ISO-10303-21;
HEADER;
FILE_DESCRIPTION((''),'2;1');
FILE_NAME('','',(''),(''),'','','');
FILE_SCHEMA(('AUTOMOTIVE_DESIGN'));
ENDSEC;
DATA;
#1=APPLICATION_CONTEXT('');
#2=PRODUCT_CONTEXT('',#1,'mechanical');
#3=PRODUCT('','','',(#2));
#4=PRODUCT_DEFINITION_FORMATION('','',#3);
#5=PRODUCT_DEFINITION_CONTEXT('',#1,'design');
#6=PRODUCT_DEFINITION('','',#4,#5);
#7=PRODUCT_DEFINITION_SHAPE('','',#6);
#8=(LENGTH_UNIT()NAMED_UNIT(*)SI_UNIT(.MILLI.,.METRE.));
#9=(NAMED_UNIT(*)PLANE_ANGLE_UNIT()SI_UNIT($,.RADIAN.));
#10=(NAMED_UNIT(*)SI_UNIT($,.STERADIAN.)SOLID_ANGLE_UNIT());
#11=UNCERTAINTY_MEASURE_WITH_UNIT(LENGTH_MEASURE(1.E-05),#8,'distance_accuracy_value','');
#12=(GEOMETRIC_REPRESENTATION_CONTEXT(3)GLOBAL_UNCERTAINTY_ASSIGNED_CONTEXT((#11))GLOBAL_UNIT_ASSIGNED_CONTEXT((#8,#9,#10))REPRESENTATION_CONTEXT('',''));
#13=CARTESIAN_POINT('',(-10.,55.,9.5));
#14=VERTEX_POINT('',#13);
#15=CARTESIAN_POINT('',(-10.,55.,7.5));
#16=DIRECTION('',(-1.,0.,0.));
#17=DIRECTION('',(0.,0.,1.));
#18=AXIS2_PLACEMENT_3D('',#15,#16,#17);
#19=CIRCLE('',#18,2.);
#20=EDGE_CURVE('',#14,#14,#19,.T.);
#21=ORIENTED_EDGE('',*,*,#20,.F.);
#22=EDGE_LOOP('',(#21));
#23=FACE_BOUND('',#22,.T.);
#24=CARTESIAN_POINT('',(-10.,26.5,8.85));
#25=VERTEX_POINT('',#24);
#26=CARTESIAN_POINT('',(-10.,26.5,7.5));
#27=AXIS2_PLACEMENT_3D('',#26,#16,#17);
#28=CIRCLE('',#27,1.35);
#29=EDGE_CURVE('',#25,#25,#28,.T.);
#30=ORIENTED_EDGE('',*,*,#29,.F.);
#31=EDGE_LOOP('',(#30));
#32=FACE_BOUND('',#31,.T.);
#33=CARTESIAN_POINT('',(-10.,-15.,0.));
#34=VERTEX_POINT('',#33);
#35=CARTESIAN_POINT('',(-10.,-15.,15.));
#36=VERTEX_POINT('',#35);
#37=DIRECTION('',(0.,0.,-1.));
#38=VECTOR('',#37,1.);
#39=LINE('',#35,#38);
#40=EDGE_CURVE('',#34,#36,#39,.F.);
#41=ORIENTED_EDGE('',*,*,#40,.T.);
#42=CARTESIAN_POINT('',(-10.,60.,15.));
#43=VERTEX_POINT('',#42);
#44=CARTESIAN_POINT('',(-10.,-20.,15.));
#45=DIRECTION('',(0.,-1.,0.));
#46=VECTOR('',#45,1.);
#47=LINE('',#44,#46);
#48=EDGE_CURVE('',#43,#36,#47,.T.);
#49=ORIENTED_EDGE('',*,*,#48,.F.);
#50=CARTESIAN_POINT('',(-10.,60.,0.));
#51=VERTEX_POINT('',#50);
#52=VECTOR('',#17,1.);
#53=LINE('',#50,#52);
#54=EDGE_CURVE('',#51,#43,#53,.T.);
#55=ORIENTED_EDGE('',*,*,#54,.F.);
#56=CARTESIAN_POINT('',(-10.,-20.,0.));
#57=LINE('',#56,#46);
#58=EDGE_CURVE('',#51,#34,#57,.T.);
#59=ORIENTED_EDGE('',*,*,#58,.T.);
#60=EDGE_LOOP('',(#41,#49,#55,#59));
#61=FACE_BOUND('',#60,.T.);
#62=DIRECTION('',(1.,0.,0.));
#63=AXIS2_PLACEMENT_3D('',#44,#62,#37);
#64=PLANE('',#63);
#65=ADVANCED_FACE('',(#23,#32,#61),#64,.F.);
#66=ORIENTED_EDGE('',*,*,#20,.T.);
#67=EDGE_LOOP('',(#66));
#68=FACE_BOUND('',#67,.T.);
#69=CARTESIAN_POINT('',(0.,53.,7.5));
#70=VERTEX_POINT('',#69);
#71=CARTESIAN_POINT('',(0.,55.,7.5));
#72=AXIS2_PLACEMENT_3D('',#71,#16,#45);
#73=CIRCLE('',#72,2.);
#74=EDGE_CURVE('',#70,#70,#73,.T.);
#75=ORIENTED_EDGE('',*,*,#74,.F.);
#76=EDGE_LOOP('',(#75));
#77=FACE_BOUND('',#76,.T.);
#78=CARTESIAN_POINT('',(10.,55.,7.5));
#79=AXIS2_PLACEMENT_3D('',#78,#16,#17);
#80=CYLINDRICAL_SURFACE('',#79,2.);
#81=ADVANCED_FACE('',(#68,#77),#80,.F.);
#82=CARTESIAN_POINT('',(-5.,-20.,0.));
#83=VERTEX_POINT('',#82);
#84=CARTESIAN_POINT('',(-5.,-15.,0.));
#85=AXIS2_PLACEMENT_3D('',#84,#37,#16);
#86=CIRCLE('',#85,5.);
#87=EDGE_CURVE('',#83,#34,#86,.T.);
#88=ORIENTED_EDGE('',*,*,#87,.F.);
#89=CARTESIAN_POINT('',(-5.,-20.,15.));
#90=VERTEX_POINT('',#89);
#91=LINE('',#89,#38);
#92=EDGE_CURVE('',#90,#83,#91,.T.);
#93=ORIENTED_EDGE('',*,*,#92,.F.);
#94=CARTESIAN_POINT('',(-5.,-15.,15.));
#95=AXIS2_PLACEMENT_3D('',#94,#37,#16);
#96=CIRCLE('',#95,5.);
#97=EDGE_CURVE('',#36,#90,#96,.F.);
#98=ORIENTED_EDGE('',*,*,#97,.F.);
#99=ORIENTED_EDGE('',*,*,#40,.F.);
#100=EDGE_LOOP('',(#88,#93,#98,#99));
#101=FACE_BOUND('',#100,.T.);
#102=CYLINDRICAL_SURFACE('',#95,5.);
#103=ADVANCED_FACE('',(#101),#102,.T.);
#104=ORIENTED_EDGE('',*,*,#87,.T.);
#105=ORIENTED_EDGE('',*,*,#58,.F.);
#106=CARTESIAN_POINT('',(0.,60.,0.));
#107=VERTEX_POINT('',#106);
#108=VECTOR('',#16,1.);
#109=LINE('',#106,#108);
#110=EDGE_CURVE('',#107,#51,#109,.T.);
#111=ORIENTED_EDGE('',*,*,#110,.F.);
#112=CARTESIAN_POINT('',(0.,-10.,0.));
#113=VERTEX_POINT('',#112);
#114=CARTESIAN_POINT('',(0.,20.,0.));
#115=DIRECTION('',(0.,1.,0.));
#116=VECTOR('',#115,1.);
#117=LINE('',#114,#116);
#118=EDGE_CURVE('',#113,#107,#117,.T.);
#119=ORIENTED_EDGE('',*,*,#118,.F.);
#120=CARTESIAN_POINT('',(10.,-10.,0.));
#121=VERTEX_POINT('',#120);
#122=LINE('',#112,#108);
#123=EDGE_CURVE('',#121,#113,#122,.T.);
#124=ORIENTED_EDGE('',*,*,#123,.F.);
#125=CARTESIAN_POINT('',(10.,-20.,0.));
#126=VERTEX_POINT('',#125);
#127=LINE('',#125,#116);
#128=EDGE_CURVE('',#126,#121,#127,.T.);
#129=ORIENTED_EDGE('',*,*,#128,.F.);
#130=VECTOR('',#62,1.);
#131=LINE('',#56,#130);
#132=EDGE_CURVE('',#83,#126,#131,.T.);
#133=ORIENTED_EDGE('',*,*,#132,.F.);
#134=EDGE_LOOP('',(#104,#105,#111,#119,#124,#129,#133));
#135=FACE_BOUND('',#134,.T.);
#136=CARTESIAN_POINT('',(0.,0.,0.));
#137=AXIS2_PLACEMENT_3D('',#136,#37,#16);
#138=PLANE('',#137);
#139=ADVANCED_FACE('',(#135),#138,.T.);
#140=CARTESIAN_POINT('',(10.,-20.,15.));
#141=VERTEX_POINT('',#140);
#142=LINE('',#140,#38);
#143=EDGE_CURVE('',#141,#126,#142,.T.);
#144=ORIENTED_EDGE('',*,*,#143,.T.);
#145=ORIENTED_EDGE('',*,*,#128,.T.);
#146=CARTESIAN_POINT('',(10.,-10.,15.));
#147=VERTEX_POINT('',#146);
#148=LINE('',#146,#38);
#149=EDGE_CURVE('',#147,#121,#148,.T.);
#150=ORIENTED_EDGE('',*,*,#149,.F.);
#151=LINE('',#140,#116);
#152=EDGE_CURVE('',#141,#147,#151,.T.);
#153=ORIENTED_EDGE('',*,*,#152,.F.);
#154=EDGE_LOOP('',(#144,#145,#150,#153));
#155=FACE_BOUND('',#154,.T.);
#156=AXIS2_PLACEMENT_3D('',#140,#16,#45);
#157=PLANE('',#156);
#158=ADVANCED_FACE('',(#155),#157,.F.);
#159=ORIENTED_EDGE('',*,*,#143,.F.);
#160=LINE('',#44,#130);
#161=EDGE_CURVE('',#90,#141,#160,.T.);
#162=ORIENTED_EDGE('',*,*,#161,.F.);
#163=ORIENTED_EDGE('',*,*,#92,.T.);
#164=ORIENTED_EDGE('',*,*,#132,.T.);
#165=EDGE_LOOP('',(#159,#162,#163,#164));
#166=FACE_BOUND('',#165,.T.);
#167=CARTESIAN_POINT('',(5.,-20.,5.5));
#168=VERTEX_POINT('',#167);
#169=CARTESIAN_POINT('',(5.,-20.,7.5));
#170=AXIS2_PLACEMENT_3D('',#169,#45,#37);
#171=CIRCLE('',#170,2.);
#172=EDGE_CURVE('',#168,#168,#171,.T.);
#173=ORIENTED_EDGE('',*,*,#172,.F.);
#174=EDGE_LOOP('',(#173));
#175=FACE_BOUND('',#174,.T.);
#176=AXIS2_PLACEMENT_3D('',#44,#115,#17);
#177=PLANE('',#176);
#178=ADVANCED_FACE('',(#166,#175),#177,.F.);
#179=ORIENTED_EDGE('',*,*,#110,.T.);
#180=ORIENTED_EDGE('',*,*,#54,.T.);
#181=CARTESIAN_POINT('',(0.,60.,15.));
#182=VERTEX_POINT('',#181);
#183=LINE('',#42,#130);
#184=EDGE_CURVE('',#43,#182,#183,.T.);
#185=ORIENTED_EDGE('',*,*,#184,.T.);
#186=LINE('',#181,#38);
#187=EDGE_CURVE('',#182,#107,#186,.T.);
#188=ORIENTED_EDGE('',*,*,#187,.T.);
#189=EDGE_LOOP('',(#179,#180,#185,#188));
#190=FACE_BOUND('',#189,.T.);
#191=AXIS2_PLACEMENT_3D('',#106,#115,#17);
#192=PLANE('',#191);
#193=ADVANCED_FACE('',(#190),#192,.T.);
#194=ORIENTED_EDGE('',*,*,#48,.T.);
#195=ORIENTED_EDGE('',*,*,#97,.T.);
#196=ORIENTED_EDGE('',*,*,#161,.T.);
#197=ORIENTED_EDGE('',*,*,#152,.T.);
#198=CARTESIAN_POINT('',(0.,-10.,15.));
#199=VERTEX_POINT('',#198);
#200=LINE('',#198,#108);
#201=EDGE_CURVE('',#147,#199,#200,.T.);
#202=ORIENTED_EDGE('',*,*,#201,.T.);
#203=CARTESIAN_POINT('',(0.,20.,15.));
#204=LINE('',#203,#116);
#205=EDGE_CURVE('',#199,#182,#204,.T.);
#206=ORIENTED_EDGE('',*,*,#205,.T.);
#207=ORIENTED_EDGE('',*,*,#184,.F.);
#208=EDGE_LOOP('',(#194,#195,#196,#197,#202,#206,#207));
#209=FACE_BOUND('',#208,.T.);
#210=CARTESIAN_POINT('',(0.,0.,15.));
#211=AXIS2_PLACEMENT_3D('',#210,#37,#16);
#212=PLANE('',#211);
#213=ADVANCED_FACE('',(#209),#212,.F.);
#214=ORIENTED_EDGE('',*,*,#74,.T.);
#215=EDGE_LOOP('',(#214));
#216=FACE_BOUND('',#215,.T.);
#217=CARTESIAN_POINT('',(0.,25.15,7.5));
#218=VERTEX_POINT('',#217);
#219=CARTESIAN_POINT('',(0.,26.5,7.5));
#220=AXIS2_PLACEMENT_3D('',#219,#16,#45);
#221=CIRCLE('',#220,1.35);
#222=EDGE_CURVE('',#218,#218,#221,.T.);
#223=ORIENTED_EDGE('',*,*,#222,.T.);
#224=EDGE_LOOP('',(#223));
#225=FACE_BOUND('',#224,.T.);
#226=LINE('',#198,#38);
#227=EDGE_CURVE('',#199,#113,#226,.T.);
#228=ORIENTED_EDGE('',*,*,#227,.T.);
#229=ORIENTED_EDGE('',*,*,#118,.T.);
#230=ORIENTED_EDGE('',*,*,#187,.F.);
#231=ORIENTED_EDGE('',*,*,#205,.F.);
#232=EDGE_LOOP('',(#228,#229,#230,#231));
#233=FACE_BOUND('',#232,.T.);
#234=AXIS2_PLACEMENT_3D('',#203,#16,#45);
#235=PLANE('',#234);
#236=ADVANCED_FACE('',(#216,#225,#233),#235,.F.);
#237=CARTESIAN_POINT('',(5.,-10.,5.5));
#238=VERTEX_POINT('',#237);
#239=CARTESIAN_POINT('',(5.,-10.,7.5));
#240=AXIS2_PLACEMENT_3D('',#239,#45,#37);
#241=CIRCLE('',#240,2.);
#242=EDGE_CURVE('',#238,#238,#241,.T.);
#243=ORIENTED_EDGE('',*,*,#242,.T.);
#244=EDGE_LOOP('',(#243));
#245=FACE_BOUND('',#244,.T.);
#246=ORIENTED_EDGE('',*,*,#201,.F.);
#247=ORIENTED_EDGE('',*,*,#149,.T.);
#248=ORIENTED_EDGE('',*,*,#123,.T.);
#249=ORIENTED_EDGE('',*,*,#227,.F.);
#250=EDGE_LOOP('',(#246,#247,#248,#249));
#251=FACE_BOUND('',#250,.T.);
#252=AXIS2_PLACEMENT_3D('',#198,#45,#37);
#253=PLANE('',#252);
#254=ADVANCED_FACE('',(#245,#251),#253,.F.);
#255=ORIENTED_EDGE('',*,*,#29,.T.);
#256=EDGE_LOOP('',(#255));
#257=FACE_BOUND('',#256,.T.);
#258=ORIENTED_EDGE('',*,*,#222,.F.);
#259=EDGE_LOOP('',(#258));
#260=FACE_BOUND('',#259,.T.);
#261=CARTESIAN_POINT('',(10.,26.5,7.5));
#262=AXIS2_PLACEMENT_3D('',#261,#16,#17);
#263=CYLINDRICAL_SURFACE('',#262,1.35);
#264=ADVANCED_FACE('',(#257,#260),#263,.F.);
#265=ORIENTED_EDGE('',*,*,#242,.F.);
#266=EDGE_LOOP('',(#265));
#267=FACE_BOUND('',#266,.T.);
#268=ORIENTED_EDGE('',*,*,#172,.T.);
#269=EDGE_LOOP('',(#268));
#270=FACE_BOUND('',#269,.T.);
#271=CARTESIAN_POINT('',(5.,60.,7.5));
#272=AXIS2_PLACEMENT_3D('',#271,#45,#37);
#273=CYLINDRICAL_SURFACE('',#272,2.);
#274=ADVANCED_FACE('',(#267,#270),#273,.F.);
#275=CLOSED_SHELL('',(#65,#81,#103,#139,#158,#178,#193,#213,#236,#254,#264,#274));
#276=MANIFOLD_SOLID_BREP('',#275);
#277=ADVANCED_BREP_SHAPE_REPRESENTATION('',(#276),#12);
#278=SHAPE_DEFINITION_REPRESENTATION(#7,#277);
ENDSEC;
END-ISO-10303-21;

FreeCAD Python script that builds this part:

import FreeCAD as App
import Part
import Sketcher
from FreeCAD import Vector


def edges_at(feature, points):
    """Names of the edges that pass closest to the given points."""
    edges = feature.Shape.Edges
    near = lambda p: min(range(len(edges)), key=lambda i: edges[i].distToShape(Part.Vertex(*p))[0])
    return sorted({f"Edge{near(p) + 1}" for p in points})


def add_polygon(sketch, points):
    """Adds a closed chain of lines whose ends are joined by coincident constraints."""
    first, n = sketch.GeometryCount, len(points)
    for a, b in zip(points, points[1:] + points[:1]):
        sketch.addGeometry(Part.LineSegment(App.Vector(*a, 0), App.Vector(*b, 0)), False)
    for i in range(n):
        sketch.addConstraint(Sketcher.Constraint("Coincident", first + i, 2, first + (i + 1) % n, 1))

doc = App.newDocument("Part")
body = doc.addObject("PartDesign::Body", "Body")

# Sketch on XY plane
sketch1 = doc.addObject("Sketcher::SketchObject", "Sketch")
body.addObject(sketch1)
sketch1.AttachmentSupport = (doc.XY_Plane, [""])
sketch1.MapMode = "FlatFace"
add_polygon(sketch1, [(0, -10), (0, 20), (-10, 20), (-10, -20), (10, -20), (10, -10)])  # lines 0-5
sketch1.addConstraint([
    Sketcher.Constraint("Vertical", 0),
    Sketcher.Constraint("Horizontal", 1),
    Sketcher.Constraint("Vertical", 2),
    Sketcher.Constraint("Horizontal", 3),
    Sketcher.Constraint("Vertical", 4),
    Sketcher.Constraint("Horizontal", 5),
    Sketcher.Constraint("Symmetric", 1, 2, 3, 2, -1, 1),
    Sketcher.Constraint("PointOnObject", 0, 2, -2),
    Sketcher.Constraint("Equal", 5, 4),
    Sketcher.Constraint("DistanceX", 1, 2, 1, 1, 10.0),
    Sketcher.Constraint("DistanceY", 0, 1, 0, 2, 30.0),
])
pad1 = doc.addObject("PartDesign::Pad", "Pad")
body.addObject(pad1)
pad1.Profile = sketch1
pad1.Length = 15
doc.recompute()

fillet = doc.addObject("PartDesign::Fillet", "Fillet")
body.addObject(fillet)
fillet.Base = (pad1, edges_at(pad1, [(-10, -20, 7.5)]))
fillet.Radius = 5

# Sketch on XZ plane
sketch2 = doc.addObject("Sketcher::SketchObject", "Sketch001")
body.addObject(sketch2)
sketch2.AttachmentSupport = (doc.XZ_Plane, [""])
sketch2.MapMode = "FlatFace"
sketch2.AttachmentOffset = App.Placement(Vector(0, 0, -20), App.Rotation())
add_polygon(sketch2, [(-10, 0), (-10, 15), (0, 15), (0, 0)])  # lines 0-3
sketch2.addConstraint([
    Sketcher.Constraint("Vertical", 0),
    Sketcher.Constraint("Horizontal", 1),
    Sketcher.Constraint("Vertical", 2),
    Sketcher.Constraint("Horizontal", 3),
    Sketcher.Constraint("Coincident", 2, 2, -1, 1),
    Sketcher.Constraint("DistanceX", 1, 1, 1, 2, 10.0),
    Sketcher.Constraint("DistanceY", 0, 1, 0, 2, 15.0),
])
pad2 = doc.addObject("PartDesign::Pad", "Pad001")
body.addObject(pad2)
pad2.Profile = sketch2
pad2.Length = 40
pad2.Reversed = True

# Sketch on XZ plane
sketch3 = doc.addObject("Sketcher::SketchObject", "Sketch002")
body.addObject(sketch3)
sketch3.AttachmentSupport = (doc.XZ_Plane, [""])
sketch3.MapMode = "FlatFace"
sketch3.AttachmentOffset = App.Placement(Vector(0, 0, 20), App.Rotation())
sketch3.addGeometry(Part.Circle(Vector(5, 7.5, 0), Vector(0, 0, 1), 2), False)
sketch3.addConstraint([
    Sketcher.Constraint("Diameter", 0, 4.0),
    Sketcher.Constraint("DistanceX", -1, 1, 0, 3, 5.0),
    Sketcher.Constraint("DistanceY", -1, 1, 0, 3, 7.5),
])
pocket1 = doc.addObject("PartDesign::Pocket", "Pocket")
body.addObject(pocket1)
pocket1.Profile = sketch3
pocket1.Type = "ThroughAll"

# Sketch on YZ plane
sketch4 = doc.addObject("Sketcher::SketchObject", "Sketch003")
body.addObject(sketch4)
sketch4.AttachmentSupport = (doc.YZ_Plane, [""])
sketch4.MapMode = "FlatFace"
sketch4.AttachmentOffset = App.Placement(Vector(0, 0, -10), App.Rotation())
sketch4.addGeometry(Part.Circle(Vector(55, 7.5, 0), Vector(0, 0, 1), 2), False)
sketch4.addConstraint([
    Sketcher.Constraint("Diameter", 0, 4.0),
    Sketcher.Constraint("DistanceX", -1, 1, 0, 3, 55.0),
    Sketcher.Constraint("DistanceY", -1, 1, 0, 3, 7.5),
])
pocket2 = doc.addObject("PartDesign::Pocket", "Pocket001")
body.addObject(pocket2)
pocket2.Profile = sketch4
pocket2.Type = "ThroughAll"
pocket2.Reversed = True

# Sketch on YZ plane
sketch5 = doc.addObject("Sketcher::SketchObject", "Sketch004")
body.addObject(sketch5)
sketch5.AttachmentSupport = (doc.YZ_Plane, [""])
sketch5.MapMode = "FlatFace"
sketch5.AttachmentOffset = App.Placement(Vector(0, 0, -10), App.Rotation())
sketch5.addGeometry(Part.Circle(Vector(26.5, 7.5, 0), Vector(0, 0, 1), 1.4), False)
sketch5.addConstraint([
    Sketcher.Constraint("Diameter", 0, 2.7),
    Sketcher.Constraint("DistanceX", -1, 1, 0, 3, 26.5),
    Sketcher.Constraint("DistanceY", -1, 1, 0, 3, 7.5),
])
pocket3 = doc.addObject("PartDesign::Pocket", "Pocket002")
body.addObject(pocket3)
pocket3.Profile = sketch5
pocket3.Type = "ThroughAll"
pocket3.Reversed = True

doc.recompute()
